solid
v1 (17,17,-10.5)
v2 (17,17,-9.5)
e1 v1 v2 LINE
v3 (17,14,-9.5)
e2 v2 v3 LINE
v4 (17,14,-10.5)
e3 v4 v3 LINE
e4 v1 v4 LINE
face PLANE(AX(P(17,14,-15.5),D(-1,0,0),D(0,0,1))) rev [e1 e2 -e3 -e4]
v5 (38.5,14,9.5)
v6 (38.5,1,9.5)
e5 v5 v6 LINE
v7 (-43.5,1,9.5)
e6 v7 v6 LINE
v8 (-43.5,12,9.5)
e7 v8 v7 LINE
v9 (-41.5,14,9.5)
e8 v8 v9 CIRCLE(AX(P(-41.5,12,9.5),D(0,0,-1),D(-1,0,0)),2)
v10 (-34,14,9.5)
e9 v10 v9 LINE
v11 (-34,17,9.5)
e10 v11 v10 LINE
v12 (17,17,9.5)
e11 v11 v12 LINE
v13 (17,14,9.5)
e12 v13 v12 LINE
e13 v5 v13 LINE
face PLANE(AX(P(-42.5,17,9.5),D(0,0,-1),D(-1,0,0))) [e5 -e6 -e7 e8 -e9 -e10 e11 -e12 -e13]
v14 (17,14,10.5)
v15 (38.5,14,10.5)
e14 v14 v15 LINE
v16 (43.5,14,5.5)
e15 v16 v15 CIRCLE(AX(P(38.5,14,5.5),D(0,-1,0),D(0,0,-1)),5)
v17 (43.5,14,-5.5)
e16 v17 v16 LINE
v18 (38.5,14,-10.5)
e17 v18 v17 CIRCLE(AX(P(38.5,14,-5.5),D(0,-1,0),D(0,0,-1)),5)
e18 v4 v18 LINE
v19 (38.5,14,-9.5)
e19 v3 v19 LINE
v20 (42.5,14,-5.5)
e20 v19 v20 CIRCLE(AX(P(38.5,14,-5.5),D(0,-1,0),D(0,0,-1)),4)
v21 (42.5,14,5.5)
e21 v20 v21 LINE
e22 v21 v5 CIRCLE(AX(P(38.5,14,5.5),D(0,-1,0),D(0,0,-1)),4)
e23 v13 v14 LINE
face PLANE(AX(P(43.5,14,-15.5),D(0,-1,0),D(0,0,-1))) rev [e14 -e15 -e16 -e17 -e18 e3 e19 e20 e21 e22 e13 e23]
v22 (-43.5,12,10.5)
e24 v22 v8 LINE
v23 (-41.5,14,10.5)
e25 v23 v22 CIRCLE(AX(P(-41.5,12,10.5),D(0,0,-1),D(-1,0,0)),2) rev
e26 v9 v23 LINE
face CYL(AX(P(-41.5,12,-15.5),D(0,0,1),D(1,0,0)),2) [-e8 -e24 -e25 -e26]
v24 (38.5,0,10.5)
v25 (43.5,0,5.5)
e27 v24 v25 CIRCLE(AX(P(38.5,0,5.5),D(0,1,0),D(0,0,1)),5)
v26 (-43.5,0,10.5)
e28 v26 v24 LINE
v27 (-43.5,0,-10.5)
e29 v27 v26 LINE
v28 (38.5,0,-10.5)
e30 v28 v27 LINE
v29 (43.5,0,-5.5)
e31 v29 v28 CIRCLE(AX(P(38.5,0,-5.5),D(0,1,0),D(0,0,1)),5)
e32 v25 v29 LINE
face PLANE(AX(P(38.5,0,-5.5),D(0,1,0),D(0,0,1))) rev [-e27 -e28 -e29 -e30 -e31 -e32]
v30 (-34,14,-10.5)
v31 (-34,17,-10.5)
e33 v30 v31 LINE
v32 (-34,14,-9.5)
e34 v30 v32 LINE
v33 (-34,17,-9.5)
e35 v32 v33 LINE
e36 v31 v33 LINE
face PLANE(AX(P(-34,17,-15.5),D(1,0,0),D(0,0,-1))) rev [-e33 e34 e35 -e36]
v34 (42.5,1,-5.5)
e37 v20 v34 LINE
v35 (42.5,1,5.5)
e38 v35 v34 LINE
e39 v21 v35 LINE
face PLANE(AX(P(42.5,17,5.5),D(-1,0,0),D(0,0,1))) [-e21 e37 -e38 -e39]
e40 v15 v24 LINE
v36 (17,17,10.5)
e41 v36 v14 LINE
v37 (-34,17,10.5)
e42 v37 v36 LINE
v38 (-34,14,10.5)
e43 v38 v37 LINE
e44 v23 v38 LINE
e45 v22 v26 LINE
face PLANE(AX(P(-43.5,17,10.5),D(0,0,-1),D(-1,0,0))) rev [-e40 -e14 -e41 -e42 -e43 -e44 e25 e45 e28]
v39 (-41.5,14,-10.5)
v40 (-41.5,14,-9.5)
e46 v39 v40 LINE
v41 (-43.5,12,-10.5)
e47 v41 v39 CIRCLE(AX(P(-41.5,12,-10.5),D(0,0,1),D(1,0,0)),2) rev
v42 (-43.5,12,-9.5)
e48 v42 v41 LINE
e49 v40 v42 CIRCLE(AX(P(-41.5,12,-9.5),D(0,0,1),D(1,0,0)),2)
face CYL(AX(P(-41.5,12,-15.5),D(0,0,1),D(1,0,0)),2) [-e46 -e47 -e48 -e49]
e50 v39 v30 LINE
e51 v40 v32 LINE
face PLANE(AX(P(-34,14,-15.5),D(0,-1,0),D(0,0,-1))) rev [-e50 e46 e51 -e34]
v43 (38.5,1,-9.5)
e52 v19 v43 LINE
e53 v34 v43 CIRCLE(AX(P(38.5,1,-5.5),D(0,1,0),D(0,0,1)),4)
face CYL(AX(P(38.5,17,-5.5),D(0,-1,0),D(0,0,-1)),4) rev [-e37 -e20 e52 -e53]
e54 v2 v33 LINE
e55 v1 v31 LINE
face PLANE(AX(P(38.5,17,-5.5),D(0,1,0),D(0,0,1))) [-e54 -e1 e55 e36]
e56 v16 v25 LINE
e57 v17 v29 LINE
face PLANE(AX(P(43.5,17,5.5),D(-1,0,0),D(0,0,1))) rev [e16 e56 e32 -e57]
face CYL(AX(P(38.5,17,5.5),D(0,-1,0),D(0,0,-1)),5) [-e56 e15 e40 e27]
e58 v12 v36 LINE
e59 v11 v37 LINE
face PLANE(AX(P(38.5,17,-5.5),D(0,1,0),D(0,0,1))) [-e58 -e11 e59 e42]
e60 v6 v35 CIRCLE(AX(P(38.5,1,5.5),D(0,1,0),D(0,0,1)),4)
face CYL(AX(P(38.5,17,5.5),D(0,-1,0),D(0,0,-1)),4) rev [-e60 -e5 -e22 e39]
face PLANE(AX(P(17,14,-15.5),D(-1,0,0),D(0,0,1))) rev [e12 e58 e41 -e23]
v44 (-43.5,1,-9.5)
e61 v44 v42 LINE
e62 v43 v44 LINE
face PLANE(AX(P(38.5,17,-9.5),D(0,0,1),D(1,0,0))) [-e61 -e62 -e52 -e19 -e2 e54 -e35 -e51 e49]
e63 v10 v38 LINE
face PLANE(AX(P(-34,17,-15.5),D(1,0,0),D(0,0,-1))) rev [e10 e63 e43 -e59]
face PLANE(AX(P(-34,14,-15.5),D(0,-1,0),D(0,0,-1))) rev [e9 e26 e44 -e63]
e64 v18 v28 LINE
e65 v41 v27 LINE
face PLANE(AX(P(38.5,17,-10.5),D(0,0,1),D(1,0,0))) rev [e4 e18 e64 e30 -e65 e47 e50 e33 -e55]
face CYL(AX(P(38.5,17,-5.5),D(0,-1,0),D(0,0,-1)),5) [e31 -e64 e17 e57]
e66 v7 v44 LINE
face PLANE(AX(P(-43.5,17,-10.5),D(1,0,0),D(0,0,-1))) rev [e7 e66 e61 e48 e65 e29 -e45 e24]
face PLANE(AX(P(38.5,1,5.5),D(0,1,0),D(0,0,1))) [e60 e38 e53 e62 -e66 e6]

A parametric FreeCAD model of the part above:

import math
import FreeCAD as App
import Part
import Sketcher
from FreeCAD import Vector
Q = App.Units.Quantity


def edges_at(feature, points):
    """Names of the edges that pass closest to the given points."""
    edges = feature.Shape.Edges
    near = lambda p: min(range(len(edges)), key=lambda i: edges[i].distToShape(Part.Vertex(*p))[0])
    return sorted({f"Edge{near(p) + 1}" for p in points})


def add_polygon(sketch, points):
    """Adds a closed chain of lines whose ends are joined by coincident constraints."""
    first, n = sketch.GeometryCount, len(points)
    for a, b in zip(points, points[1:] + points[:1]):
        sketch.addGeometry(Part.LineSegment(App.Vector(*a, 0), App.Vector(*b, 0)), False)
    for i in range(n):
        sketch.addConstraint(Sketcher.Constraint("Coincident", first + i, 2, first + (i + 1) % n, 1))

doc = App.newDocument("Part")
body = doc.addObject("PartDesign::Body", "Body")

# Sketch on XZ plane
sketch1 = body.newObject("Sketcher::SketchObject", "Sketch")
sketch1.AttachmentSupport = (doc.getObject("XZ_Plane"), [""])
sketch1.MapMode = "FlatFace"
sketch1.addGeometry(Part.LineSegment(Vector(38.5, -10.5, 0), Vector(-43.5, -10.5, 0)), False)
sketch1.addGeometry(Part.LineSegment(Vector(-43.5, -10.5, 0), Vector(-43.5, 10.5, 0)), False)
sketch1.addGeometry(Part.LineSegment(Vector(-43.5, 10.5, 0), Vector(38.5, 10.5, 0)), False)
sketch1.addGeometry(Part.ArcOfCircle(Part.Circle(Vector(38.5, 5.5, 0), Vector(0, 0, 1), 5), math.radians(0), math.radians(90)), False)
sketch1.addGeometry(Part.LineSegment(Vector(43.5, 5.5, 0), Vector(43.5, -5.5, 0)), False)
sketch1.addGeometry(Part.ArcOfCircle(Part.Circle(Vector(38.5, -5.5, 0), Vector(0, 0, 1), 5), math.radians(-90), math.radians(0)), False)
sketch1.addGeometry(Part.LineSegment(Vector(-42.5, 9.5, 0), Vector(-42.5, -9.5, 0)), False)
sketch1.addGeometry(Part.LineSegment(Vector(-42.5, -9.5, 0), Vector(38.5, -9.5, 0)), False)
sketch1.addGeometry(Part.ArcOfCircle(Part.Circle(Vector(38.5, -5.5, 0), Vector(0, 0, 1), 4), math.radians(-90), math.radians(0)), False)
sketch1.addGeometry(Part.LineSegment(Vector(42.5, -5.5, 0), Vector(42.5, 5.5, 0)), False)
sketch1.addGeometry(Part.ArcOfCircle(Part.Circle(Vector(38.5, 5.5, 0), Vector(0, 0, 1), 4), math.radians(0), math.radians(90)), False)
sketch1.addGeometry(Part.LineSegment(Vector(38.5, 9.5, 0), Vector(-42.5, 9.5, 0)), False)
sketch1.addConstraint(Sketcher.Constraint("Coincident", 0, 2, 1, 1))
sketch1.addConstraint(Sketcher.Constraint("Coincident", 1, 2, 2, 1))
sketch1.addConstraint(Sketcher.Constraint("Tangent", 2, 2, 3, 2))
sketch1.addConstraint(Sketcher.Constraint("Tangent", 3, 1, 4, 1))
sketch1.addConstraint(Sketcher.Constraint("Tangent", 4, 2, 5, 2))
sketch1.addConstraint(Sketcher.Constraint("Tangent", 5, 1, 0, 1))
sketch1.addConstraint(Sketcher.Constraint("Coincident", 6, 2, 7, 1))
sketch1.addConstraint(Sketcher.Constraint("Tangent", 7, 2, 8, 1))
sketch1.addConstraint(Sketcher.Constraint("Tangent", 8, 2, 9, 1))
sketch1.addConstraint(Sketcher.Constraint("Tangent", 9, 2, 10, 1))
sketch1.addConstraint(Sketcher.Constraint("Tangent", 10, 2, 11, 1))
sketch1.addConstraint(Sketcher.Constraint("Coincident", 11, 2, 6, 1))
sketch1.addConstraint(Sketcher.Constraint("Horizontal", 0))
sketch1.addConstraint(Sketcher.Constraint("Vertical", 1))
sketch1.addConstraint(Sketcher.Constraint("Horizontal", 2))
sketch1.addConstraint(Sketcher.Constraint("Vertical", 4))
sketch1.addConstraint(Sketcher.Constraint("Vertical", 6))
sketch1.addConstraint(Sketcher.Constraint("Horizontal", 7))
sketch1.addConstraint(Sketcher.Constraint("Vertical", 9))
sketch1.addConstraint(Sketcher.Constraint("Horizontal", 11))
sketch1.addConstraint(Sketcher.Constraint("Coincident", 8, 3, 5, 3))
sketch1.addConstraint(Sketcher.Constraint("Coincident", 10, 3, 3, 3))
sketch1.addConstraint(Sketcher.Constraint("Equal", 3, 5))
sketch1.addConstraint(Sketcher.Constraint("Radius", 3, Q("5 mm")))
sketch1.addConstraint(Sketcher.Constraint("Radius", 8, Q("4 mm")))
sketch1.addConstraint(Sketcher.Constraint("DistanceX", 0, 2, 0, 1, Q("82 mm")))
sketch1.addConstraint(Sketcher.Constraint("DistanceX", 7, 1, 7, 2, Q("81 mm")))
sketch1.addConstraint(Sketcher.Constraint("DistanceY", 1, 1, 1, 2, Q("21 mm")))
sketch1.addConstraint(Sketcher.Constraint("DistanceX", -1, 1, 3, 3, Q("38.5 mm")))
sketch1.addConstraint(Sketcher.Constraint("DistanceY", -1, 1, 3, 3, Q("5.5 mm")))
pad1 = body.newObject("PartDesign::Pad", "Pad")
pad1.Profile = sketch1
pad1.Length = 17
pad1.Reversed = True

# Sketch on XZ plane
sketch2 = body.newObject("Sketcher::SketchObject", "Sketch001")
sketch2.AttachmentSupport = (doc.getObject("XZ_Plane"), [""])
sketch2.MapMode = "FlatFace"
sketch2.addGeometry(Part.LineSegment(Vector(-44, 10, 0), Vector(-44, -10, 0)), False)
sketch2.addGeometry(Part.LineSegment(Vector(-44, -10, 0), Vector(38, -10, 0)), False)
sketch2.addGeometry(Part.ArcOfCircle(Part.Circle(Vector(38, -6, 0), Vector(0, 0, 1), 5), math.radians(-90), math.radians(0)), False)
sketch2.addGeometry(Part.LineSegment(Vector(44, -6, 0), Vector(44, 6, 0)), False)
sketch2.addGeometry(Part.ArcOfCircle(Part.Circle(Vector(38, 6, 0), Vector(0, 0, 1), 5), math.radians(0), math.radians(90)), False)
sketch2.addGeometry(Part.LineSegment(Vector(38, 10, 0), Vector(-44, 10, 0)), False)
sketch2.addConstraint(Sketcher.Constraint("Coincident", 0, 2, 1, 1))
sketch2.addConstraint(Sketcher.Constraint("Tangent", 1, 2, 2, 1))
sketch2.addConstraint(Sketcher.Constraint("Tangent", 2, 2, 3, 1))
sketch2.addConstraint(Sketcher.Constraint("Tangent", 3, 2, 4, 1))
sketch2.addConstraint(Sketcher.Constraint("Tangent", 4, 2, 5, 1))
sketch2.addConstraint(Sketcher.Constraint("Coincident", 5, 2, 0, 1))
sketch2.addConstraint(Sketcher.Constraint("Vertical", 0))
sketch2.addConstraint(Sketcher.Constraint("Horizontal", 1))
sketch2.addConstraint(Sketcher.Constraint("Vertical", 3))
sketch2.addConstraint(Sketcher.Constraint("Horizontal", 5))
sketch2.addConstraint(Sketcher.Constraint("Equal", 2, 4))
sketch2.addConstraint(Sketcher.Constraint("Radius", 2, Q("5 mm")))
sketch2.addConstraint(Sketcher.Constraint("DistanceX", 1, 1, 1, 2, Q("82 mm")))
sketch2.addConstraint(Sketcher.Constraint("DistanceY", 0, 2, 0, 1, Q("21 mm")))
sketch2.addConstraint(Sketcher.Constraint("DistanceX", -1, 1, 2, 3, Q("38.5 mm")))
sketch2.addConstraint(Sketcher.Constraint("DistanceY", 2, 3, -1, 1, Q("5.5 mm")))
pad2 = body.newObject("PartDesign::Pad", "Pad001")
pad2.Profile = sketch2
pad2.Length = 1
pad2.Reversed = True

# Sketch on XZ plane
sketch3 = body.newObject("Sketcher::SketchObject", "Sketch002")
sketch3.AttachmentSupport = (doc.getObject("XZ_Plane"), [""])
sketch3.MapMode = "FlatFace"
sketch3.AttachmentOffset = App.Placement(Vector(0, 0, -17), App.Rotation())
add_polygon(sketch3, [(-52, -10), (-52, 10), (-39, 10), (-39, -10)])  # lines 0-3
sketch3.addConstraint(Sketcher.Constraint("Vertical", 0))
sketch3.addConstraint(Sketcher.Constraint("Horizontal", 1))
sketch3.addConstraint(Sketcher.Constraint("Vertical", 2))
sketch3.addConstraint(Sketcher.Constraint("Horizontal", 3))
sketch3.addConstraint(Sketcher.Constraint("DistanceY", 0, 1, 0, 2, Q("19 mm")))
sketch3.addConstraint(Sketcher.Constraint("DistanceY", -1, 1, 0, 2, Q("9.5 mm")))
sketch3.addConstraint(Sketcher.Constraint("DistanceX", 1, 1, 1, 2, Q("13.083034 mm")))
sketch3.addConstraint(Sketcher.Constraint("DistanceX", 1, 2, -1, 1, Q("38.568929 mm")))
pocket1 = body.newObject("PartDesign::Pocket", "Pocket")
pocket1.Profile = sketch3
pocket1.Length = 16
pocket1.Reversed = True

# Sketch on XY plane
sketch4 = body.newObject("Sketcher::SketchObject", "Sketch003")
sketch4.AttachmentSupport = (doc.getObject("XY_Plane"), [""])
sketch4.MapMode = "FlatFace"
sketch4.AttachmentOffset = App.Placement(Vector(0, 0, 10.5), App.Rotation())
add_polygon(sketch4, [(17, 17), (17, 14), (43.5, 14), (43.5, 17)])  # lines 0-3
sketch4.addConstraint(Sketcher.Constraint("Vertical", 0))
sketch4.addConstraint(Sketcher.Constraint("Horizontal", 1))
sketch4.addConstraint(Sketcher.Constraint("Vertical", 2))
sketch4.addConstraint(Sketcher.Constraint("Horizontal", 3))
sketch4.addConstraint(Sketcher.Constraint("DistanceY", 0, 2, 0, 1, Q("3 mm")))
sketch4.addConstraint(Sketcher.Constraint("DistanceX", 1, 1, 1, 2, Q("26.5 mm")))
sketch4.addConstraint(Sketcher.Constraint("DistanceX", -1, 1, 0, 2, Q("17 mm")))
sketch4.addConstraint(Sketcher.Constraint("DistanceY", -1, 1, 0, 2, Q("14 mm")))
pocket2 = body.newObject("PartDesign::Pocket", "Pocket001")
pocket2.Profile = sketch4
pocket2.Length = 26

# Sketch on XY plane
sketch5 = body.newObject("Sketcher::SketchObject", "Sketch004")
sketch5.AttachmentSupport = (doc.getObject("XY_Plane"), [""])
sketch5.MapMode = "FlatFace"
sketch5.AttachmentOffset = App.Placement(Vector(0, 0, 10.5), App.Rotation())
add_polygon(sketch5, [(-43.5, 17), (-43.5, 14), (-34, 14), (-34, 17)])  # lines 0-3
sketch5.addConstraint(Sketcher.Constraint("Vertical", 0))
sketch5.addConstraint(Sketcher.Constraint("Horizontal", 1))
sketch5.addConstraint(Sketcher.Constraint("Vertical", 2))
sketch5.addConstraint(Sketcher.Constraint("Horizontal", 3))
sketch5.addConstraint(Sketcher.Constraint("DistanceY", 0, 2, 0, 1, Q("3 mm")))
sketch5.addConstraint(Sketcher.Constraint("DistanceX", 1, 1, 1, 2, Q("9.5 mm")))
sketch5.addConstraint(Sketcher.Constraint("DistanceY", -1, 1, 0, 2, Q("14 mm")))
sketch5.addConstraint(Sketcher.Constraint("DistanceX", 1, 2, -1, 1, Q("34 mm")))
pocket3 = body.newObject("PartDesign::Pocket", "Pocket002")
pocket3.Profile = sketch5
pocket3.Length = 26
doc.recompute()

fillet = body.newObject("PartDesign::Fillet", "Fillet")
fillet.Base = (pocket3, edges_at(pocket3, [(-43.5, 14, -10), (-43.5, 14, 10)]))
fillet.Radius = 2

doc.recompute()
